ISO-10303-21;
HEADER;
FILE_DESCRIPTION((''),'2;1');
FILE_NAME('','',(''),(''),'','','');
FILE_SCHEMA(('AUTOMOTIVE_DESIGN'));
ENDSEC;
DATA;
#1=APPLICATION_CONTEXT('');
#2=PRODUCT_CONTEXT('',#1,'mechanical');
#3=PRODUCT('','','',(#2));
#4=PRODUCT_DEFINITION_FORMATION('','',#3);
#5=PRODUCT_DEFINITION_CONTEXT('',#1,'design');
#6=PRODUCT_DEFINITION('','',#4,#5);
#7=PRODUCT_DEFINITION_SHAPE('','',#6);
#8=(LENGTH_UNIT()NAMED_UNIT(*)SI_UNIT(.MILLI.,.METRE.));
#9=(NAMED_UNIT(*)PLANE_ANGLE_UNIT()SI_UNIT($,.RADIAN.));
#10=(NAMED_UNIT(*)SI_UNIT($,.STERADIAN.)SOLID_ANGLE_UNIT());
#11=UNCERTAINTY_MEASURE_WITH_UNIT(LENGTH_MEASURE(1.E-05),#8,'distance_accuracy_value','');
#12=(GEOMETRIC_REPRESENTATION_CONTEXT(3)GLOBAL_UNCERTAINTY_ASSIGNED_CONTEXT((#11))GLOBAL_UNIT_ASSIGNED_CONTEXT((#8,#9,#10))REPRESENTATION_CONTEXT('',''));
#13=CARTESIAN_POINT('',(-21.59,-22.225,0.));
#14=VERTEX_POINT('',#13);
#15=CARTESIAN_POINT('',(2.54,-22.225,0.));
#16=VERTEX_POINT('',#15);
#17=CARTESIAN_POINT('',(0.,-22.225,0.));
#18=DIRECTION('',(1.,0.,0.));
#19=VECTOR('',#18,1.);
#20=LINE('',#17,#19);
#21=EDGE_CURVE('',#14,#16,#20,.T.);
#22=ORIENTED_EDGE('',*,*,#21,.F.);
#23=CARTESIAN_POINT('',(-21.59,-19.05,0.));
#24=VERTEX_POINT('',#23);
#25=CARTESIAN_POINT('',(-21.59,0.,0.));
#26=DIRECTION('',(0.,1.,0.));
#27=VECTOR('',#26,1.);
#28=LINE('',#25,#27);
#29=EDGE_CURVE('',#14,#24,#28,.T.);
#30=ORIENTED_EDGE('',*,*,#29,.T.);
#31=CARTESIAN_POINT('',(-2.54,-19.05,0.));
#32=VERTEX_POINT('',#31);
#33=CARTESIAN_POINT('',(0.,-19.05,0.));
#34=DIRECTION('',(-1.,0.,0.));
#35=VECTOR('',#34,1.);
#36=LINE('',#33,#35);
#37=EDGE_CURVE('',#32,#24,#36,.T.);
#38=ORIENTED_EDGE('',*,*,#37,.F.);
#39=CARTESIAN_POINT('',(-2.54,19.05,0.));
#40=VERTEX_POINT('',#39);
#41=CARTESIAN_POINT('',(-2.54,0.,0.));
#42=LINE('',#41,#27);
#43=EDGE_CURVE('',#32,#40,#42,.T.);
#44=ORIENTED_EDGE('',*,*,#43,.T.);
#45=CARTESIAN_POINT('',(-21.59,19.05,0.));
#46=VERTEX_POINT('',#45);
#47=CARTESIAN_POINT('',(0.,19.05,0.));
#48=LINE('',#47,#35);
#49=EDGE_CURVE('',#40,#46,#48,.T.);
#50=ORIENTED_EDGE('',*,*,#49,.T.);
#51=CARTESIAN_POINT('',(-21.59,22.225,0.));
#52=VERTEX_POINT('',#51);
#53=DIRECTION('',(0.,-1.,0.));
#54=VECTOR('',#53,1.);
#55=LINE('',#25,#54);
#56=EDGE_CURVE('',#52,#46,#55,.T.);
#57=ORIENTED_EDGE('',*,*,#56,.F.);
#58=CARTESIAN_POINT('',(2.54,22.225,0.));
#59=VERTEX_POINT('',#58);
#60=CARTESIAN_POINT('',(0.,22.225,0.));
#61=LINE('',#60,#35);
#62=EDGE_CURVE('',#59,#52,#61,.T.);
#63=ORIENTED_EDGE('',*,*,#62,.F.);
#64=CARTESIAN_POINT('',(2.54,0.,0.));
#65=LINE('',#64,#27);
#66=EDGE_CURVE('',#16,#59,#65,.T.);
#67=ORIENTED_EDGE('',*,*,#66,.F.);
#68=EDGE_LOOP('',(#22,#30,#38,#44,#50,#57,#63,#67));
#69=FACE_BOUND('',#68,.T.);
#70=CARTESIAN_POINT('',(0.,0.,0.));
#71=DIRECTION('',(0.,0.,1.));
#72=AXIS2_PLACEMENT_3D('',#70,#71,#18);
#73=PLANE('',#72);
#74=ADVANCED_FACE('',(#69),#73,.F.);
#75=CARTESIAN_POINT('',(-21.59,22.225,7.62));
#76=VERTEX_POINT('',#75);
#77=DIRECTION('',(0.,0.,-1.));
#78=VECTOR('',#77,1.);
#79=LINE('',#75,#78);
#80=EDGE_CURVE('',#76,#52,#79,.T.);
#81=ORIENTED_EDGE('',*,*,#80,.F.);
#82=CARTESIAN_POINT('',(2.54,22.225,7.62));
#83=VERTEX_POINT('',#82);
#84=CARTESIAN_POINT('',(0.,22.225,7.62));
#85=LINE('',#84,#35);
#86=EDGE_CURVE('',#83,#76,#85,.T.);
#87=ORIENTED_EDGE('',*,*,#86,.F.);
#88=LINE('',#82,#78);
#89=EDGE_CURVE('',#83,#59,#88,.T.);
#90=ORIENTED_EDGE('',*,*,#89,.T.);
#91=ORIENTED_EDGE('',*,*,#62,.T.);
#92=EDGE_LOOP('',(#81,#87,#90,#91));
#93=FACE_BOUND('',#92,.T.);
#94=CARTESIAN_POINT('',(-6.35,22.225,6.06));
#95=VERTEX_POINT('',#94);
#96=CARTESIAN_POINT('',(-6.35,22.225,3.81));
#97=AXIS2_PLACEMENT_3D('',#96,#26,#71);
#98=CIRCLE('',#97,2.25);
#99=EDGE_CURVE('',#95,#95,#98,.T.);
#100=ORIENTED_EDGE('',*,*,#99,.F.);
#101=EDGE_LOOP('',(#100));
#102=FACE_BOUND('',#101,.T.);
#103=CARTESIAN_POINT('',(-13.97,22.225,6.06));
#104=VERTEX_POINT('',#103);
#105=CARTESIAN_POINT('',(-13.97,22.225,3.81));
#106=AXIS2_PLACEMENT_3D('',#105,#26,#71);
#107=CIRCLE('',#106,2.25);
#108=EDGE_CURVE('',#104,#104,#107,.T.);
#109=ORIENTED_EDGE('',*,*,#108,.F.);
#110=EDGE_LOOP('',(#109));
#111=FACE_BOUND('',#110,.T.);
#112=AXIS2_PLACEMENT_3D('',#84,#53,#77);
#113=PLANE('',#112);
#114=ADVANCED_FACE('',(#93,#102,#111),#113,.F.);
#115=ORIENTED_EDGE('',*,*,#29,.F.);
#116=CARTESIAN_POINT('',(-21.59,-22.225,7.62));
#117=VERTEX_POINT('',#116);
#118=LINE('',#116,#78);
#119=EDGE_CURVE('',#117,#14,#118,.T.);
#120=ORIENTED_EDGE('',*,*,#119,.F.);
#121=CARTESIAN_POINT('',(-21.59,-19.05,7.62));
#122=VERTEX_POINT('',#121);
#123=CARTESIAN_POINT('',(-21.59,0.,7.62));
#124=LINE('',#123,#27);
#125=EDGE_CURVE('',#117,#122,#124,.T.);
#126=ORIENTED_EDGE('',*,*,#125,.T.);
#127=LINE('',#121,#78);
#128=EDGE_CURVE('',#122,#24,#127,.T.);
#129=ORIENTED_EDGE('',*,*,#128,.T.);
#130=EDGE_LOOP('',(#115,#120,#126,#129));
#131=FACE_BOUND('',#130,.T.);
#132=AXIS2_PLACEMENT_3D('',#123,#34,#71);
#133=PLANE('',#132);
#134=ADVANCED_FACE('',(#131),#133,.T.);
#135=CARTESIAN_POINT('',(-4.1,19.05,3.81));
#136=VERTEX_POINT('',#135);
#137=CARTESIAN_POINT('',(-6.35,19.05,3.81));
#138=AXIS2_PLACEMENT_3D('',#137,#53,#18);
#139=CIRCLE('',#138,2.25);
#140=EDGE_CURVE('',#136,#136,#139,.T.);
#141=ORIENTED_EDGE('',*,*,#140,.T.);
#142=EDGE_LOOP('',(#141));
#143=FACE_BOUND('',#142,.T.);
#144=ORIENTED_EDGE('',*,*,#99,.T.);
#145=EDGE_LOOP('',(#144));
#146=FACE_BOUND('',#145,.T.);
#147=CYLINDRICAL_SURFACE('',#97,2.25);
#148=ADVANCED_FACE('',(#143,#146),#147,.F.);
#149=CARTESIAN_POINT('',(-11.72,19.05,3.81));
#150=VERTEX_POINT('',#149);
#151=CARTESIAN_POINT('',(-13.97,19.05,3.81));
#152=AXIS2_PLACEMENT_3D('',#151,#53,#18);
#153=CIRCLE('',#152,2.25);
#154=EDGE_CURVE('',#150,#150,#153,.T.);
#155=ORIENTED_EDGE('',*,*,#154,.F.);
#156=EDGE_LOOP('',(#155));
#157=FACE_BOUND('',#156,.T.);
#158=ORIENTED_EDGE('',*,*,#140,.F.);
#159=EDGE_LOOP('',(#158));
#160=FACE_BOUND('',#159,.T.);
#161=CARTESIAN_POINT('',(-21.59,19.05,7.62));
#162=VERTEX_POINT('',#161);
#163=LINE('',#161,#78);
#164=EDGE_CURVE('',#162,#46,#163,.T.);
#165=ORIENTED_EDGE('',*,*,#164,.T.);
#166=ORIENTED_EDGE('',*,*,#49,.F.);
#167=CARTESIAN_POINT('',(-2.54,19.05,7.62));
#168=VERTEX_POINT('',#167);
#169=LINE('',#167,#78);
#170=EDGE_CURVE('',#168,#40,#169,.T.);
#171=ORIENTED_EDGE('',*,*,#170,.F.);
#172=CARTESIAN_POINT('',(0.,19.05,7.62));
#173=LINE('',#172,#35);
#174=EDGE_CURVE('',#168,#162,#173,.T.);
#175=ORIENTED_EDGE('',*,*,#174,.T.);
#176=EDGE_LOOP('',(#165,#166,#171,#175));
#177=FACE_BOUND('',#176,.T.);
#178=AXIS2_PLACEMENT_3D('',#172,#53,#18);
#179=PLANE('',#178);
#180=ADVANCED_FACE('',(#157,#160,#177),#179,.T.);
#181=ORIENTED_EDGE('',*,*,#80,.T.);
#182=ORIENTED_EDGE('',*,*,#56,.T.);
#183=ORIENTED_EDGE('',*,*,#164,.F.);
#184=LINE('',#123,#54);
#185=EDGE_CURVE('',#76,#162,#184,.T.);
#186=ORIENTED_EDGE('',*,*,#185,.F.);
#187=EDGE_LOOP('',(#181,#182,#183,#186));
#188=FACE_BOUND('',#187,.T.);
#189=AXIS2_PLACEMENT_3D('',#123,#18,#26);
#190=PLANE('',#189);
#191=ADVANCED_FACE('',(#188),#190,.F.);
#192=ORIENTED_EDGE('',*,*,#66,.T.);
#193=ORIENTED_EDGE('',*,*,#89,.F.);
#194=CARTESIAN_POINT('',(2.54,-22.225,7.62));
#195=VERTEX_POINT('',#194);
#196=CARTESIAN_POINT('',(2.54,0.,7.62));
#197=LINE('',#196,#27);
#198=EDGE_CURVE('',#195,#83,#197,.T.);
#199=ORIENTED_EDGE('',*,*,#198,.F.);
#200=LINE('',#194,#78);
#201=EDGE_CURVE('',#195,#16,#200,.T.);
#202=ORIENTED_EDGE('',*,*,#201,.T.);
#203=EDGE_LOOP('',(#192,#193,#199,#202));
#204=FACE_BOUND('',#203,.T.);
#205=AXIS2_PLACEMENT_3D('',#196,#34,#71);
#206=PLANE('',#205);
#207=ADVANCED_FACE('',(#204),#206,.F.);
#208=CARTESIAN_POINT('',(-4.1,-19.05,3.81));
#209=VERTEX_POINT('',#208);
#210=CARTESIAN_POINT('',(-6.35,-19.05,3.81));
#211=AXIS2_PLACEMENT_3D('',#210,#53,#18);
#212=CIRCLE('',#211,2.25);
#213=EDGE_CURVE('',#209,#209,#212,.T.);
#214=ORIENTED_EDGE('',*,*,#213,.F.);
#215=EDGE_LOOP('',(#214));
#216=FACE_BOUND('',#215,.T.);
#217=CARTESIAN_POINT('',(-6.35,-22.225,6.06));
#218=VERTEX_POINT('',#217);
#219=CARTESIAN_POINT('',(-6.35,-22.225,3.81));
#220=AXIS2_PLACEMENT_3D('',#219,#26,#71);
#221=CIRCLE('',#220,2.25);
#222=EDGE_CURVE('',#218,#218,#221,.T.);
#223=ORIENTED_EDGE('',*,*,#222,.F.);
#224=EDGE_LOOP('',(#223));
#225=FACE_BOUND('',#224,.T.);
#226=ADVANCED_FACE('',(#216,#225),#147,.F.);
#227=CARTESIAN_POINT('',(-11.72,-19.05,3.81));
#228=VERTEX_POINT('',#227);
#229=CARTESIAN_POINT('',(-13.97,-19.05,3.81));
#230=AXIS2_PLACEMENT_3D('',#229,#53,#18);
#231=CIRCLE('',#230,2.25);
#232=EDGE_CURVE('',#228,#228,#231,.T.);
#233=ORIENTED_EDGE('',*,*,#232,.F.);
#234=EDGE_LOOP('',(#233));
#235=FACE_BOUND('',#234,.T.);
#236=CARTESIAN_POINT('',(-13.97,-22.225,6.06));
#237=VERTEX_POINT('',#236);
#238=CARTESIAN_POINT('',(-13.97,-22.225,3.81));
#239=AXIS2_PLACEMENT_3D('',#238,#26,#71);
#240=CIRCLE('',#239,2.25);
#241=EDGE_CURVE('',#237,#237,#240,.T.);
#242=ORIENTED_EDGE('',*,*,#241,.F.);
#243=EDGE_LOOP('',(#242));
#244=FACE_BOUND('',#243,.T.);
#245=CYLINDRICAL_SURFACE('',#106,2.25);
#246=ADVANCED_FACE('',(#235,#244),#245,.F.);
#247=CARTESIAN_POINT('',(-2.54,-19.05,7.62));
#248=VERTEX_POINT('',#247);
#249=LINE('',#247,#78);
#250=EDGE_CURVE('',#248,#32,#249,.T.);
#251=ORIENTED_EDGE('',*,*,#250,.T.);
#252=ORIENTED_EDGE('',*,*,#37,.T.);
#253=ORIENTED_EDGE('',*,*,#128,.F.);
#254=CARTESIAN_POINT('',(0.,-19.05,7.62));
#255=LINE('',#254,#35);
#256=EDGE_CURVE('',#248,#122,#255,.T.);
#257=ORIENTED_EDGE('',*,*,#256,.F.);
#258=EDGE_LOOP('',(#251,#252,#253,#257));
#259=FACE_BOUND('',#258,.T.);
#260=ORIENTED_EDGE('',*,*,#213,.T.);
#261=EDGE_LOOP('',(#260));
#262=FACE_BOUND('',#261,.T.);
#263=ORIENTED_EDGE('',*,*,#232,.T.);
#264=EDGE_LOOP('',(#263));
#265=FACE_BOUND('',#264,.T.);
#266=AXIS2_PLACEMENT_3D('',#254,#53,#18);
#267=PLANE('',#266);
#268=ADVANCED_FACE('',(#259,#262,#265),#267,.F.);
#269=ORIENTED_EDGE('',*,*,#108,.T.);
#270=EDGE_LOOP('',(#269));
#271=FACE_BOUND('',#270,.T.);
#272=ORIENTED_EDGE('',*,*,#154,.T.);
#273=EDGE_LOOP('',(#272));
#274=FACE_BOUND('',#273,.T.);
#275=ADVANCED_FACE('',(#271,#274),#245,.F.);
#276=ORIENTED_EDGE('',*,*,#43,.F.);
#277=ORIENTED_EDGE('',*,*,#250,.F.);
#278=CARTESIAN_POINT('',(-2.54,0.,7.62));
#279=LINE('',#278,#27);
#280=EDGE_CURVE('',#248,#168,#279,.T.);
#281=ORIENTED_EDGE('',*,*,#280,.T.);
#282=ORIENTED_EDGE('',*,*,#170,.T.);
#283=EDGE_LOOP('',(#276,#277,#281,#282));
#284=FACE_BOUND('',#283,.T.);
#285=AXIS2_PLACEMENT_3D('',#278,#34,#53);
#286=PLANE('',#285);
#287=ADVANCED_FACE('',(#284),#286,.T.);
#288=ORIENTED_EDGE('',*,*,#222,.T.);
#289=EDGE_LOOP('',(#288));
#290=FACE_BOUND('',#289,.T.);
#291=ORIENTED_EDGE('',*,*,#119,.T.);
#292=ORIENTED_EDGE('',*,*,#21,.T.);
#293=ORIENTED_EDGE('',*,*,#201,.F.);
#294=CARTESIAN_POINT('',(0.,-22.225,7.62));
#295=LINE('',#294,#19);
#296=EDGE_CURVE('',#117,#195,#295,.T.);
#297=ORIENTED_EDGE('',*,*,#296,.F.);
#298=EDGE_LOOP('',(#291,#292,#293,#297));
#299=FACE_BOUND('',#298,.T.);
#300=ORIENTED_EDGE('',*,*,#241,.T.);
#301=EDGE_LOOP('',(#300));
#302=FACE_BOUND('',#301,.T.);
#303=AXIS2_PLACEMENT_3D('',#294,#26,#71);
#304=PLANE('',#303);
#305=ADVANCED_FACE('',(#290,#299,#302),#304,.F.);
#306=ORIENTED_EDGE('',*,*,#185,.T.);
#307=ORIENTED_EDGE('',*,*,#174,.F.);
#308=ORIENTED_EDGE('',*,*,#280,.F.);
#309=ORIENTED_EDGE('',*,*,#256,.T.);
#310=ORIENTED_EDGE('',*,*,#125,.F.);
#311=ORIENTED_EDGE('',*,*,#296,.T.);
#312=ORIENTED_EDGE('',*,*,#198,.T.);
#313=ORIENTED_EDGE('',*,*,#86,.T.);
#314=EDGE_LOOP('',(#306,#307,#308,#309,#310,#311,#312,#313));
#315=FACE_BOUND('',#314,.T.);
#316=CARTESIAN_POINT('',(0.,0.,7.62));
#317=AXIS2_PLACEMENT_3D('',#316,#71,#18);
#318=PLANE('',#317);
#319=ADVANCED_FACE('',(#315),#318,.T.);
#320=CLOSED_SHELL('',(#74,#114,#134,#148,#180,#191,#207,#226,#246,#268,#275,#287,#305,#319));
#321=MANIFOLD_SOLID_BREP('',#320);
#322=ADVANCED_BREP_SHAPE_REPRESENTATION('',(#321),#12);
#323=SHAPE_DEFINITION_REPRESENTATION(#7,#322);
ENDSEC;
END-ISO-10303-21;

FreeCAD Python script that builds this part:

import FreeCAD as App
import Part
import Sketcher
Q = App.Units.Quantity


def add_polygon(sketch, points):
    """Adds a closed chain of lines whose ends are joined by coincident constraints."""
    first, n = sketch.GeometryCount, len(points)
    for a, b in zip(points, points[1:] + points[:1]):
        sketch.addGeometry(Part.LineSegment(App.Vector(*a, 0), App.Vector(*b, 0)), False)
    for i in range(n):
        sketch.addConstraint(Sketcher.Constraint("Coincident", first + i, 2, first + (i + 1) % n, 1))

doc = App.newDocument("Part")
params = doc.addObject("Spreadsheet::Sheet", "Params")
for row, (alias, value) in enumerate([
    ("sketch1_height", "1.5 in"),
    ("sketch1_width", "0.75 in"),
    ("sketch1_width2", "0.95 in"),
    ("sketch1_height2", "1.75 in"),
    ("pad1_length", "0.3 in"),
    ("hole_diameter", "4.5 mm"),
], start=1):
    params.set(f"A{row}", alias)
    params.set(f"B{row}", "=" + value)
    params.setAlias(f"B{row}", alias)

body = doc.addObject("PartDesign::Body", "Body")

# Sketch on XY plane
sketch1 = body.newObject("Sketcher::SketchObject", "Sketch")
sketch1.AttachmentSupport = (doc.getObject("XY_Plane"), [""])
sketch1.MapMode = "FlatFace"
add_polygon(sketch1, [(-21.59, 22.225), (-21.59, 19.05), (-2.54, 19.05), (-2.54, -19.05), (-21.59, -19.05), (-21.59, -22.225), (2.54, -22.225), (2.54, 22.225)])  # lines 0-7
sketch1.addConstraint([
    Sketcher.Constraint("Vertical", 0),
    Sketcher.Constraint("Horizontal", 1),
    Sketcher.Constraint("Vertical", 2),
    Sketcher.Constraint("Horizontal", 3),
    Sketcher.Constraint("Vertical", 4),
    Sketcher.Constraint("Horizontal", 5),
    Sketcher.Constraint("Vertical", 6),
    Sketcher.Constraint("Horizontal", 7),
    Sketcher.Constraint("Symmetric", 0, 2, 3, 2, -1),
    Sketcher.Constraint("Equal", 0, 4),
    Sketcher.Constraint("DistanceY", 2, 2, 2, 1, Q("1.5 in")),
    Sketcher.Constraint("DistanceX", 1, 1, 1, 2, Q("0.75 in")),
    Sketcher.Constraint("DistanceX", 5, 1, 5, 2, Q("0.95 in")),
    Sketcher.Constraint("DistanceY", 6, 1, 6, 2, Q("1.75 in")),
    Sketcher.Constraint("DistanceX", 1, 2, -1, 1, Q("0.1 in")),
])
sketch1.setExpression("Constraints[18]", "Params.sketch1_height")
sketch1.setExpression("Constraints[19]", "Params.sketch1_width")
sketch1.setExpression("Constraints[20]", "Params.sketch1_width2")
sketch1.setExpression("Constraints[21]", "Params.sketch1_height2")
pad1 = body.newObject("PartDesign::Pad", "Pad")
pad1.Profile = sketch1
pad1.setExpression("Length", "Params.pad1_length")

# Sketch on XZ plane
sketch2 = body.newObject("Sketcher::SketchObject", "Sketch001")
sketch2.AttachmentSupport = (doc.getObject("XZ_Plane"), [""])
sketch2.MapMode = "FlatFace"
sketch2.AttachmentOffset = App.Placement(App.Vector(0, 0, -0.875 * 25.4), App.Rotation())
sketch2.addGeometry([
    Part.Circle(App.Vector(-13.97, 3.81, 0), App.Vector(0, 0, 1), 2.25),
    Part.Circle(App.Vector(-6.35, 3.81, 0), App.Vector(0, 0, 1), 2.25),
], False)
sketch2.addConstraint([
    Sketcher.Constraint("Equal", 0, 1),
    Sketcher.Constraint("Horizontal", 0, 3, 1, 3),
    Sketcher.Constraint("DistanceX", 0, 3, 1, 3, Q("0.3 in")),
    Sketcher.Constraint("Diameter", 0, Q("4.5 mm")),
    Sketcher.Constraint("DistanceX", 0, 3, -1, 1, Q("0.55 in")),
    Sketcher.Constraint("DistanceY", -1, 1, 0, 3, Q("0.15 in")),
])
doc.recompute()
hole = body.newObject("PartDesign::Hole", "Hole")
hole.Profile = sketch2
hole.ThreadType = "None"
hole.setExpression("Diameter", "Params.hole_diameter")
hole.DepthType = "ThroughAll"
hole.Reversed = True

doc.recompute()
